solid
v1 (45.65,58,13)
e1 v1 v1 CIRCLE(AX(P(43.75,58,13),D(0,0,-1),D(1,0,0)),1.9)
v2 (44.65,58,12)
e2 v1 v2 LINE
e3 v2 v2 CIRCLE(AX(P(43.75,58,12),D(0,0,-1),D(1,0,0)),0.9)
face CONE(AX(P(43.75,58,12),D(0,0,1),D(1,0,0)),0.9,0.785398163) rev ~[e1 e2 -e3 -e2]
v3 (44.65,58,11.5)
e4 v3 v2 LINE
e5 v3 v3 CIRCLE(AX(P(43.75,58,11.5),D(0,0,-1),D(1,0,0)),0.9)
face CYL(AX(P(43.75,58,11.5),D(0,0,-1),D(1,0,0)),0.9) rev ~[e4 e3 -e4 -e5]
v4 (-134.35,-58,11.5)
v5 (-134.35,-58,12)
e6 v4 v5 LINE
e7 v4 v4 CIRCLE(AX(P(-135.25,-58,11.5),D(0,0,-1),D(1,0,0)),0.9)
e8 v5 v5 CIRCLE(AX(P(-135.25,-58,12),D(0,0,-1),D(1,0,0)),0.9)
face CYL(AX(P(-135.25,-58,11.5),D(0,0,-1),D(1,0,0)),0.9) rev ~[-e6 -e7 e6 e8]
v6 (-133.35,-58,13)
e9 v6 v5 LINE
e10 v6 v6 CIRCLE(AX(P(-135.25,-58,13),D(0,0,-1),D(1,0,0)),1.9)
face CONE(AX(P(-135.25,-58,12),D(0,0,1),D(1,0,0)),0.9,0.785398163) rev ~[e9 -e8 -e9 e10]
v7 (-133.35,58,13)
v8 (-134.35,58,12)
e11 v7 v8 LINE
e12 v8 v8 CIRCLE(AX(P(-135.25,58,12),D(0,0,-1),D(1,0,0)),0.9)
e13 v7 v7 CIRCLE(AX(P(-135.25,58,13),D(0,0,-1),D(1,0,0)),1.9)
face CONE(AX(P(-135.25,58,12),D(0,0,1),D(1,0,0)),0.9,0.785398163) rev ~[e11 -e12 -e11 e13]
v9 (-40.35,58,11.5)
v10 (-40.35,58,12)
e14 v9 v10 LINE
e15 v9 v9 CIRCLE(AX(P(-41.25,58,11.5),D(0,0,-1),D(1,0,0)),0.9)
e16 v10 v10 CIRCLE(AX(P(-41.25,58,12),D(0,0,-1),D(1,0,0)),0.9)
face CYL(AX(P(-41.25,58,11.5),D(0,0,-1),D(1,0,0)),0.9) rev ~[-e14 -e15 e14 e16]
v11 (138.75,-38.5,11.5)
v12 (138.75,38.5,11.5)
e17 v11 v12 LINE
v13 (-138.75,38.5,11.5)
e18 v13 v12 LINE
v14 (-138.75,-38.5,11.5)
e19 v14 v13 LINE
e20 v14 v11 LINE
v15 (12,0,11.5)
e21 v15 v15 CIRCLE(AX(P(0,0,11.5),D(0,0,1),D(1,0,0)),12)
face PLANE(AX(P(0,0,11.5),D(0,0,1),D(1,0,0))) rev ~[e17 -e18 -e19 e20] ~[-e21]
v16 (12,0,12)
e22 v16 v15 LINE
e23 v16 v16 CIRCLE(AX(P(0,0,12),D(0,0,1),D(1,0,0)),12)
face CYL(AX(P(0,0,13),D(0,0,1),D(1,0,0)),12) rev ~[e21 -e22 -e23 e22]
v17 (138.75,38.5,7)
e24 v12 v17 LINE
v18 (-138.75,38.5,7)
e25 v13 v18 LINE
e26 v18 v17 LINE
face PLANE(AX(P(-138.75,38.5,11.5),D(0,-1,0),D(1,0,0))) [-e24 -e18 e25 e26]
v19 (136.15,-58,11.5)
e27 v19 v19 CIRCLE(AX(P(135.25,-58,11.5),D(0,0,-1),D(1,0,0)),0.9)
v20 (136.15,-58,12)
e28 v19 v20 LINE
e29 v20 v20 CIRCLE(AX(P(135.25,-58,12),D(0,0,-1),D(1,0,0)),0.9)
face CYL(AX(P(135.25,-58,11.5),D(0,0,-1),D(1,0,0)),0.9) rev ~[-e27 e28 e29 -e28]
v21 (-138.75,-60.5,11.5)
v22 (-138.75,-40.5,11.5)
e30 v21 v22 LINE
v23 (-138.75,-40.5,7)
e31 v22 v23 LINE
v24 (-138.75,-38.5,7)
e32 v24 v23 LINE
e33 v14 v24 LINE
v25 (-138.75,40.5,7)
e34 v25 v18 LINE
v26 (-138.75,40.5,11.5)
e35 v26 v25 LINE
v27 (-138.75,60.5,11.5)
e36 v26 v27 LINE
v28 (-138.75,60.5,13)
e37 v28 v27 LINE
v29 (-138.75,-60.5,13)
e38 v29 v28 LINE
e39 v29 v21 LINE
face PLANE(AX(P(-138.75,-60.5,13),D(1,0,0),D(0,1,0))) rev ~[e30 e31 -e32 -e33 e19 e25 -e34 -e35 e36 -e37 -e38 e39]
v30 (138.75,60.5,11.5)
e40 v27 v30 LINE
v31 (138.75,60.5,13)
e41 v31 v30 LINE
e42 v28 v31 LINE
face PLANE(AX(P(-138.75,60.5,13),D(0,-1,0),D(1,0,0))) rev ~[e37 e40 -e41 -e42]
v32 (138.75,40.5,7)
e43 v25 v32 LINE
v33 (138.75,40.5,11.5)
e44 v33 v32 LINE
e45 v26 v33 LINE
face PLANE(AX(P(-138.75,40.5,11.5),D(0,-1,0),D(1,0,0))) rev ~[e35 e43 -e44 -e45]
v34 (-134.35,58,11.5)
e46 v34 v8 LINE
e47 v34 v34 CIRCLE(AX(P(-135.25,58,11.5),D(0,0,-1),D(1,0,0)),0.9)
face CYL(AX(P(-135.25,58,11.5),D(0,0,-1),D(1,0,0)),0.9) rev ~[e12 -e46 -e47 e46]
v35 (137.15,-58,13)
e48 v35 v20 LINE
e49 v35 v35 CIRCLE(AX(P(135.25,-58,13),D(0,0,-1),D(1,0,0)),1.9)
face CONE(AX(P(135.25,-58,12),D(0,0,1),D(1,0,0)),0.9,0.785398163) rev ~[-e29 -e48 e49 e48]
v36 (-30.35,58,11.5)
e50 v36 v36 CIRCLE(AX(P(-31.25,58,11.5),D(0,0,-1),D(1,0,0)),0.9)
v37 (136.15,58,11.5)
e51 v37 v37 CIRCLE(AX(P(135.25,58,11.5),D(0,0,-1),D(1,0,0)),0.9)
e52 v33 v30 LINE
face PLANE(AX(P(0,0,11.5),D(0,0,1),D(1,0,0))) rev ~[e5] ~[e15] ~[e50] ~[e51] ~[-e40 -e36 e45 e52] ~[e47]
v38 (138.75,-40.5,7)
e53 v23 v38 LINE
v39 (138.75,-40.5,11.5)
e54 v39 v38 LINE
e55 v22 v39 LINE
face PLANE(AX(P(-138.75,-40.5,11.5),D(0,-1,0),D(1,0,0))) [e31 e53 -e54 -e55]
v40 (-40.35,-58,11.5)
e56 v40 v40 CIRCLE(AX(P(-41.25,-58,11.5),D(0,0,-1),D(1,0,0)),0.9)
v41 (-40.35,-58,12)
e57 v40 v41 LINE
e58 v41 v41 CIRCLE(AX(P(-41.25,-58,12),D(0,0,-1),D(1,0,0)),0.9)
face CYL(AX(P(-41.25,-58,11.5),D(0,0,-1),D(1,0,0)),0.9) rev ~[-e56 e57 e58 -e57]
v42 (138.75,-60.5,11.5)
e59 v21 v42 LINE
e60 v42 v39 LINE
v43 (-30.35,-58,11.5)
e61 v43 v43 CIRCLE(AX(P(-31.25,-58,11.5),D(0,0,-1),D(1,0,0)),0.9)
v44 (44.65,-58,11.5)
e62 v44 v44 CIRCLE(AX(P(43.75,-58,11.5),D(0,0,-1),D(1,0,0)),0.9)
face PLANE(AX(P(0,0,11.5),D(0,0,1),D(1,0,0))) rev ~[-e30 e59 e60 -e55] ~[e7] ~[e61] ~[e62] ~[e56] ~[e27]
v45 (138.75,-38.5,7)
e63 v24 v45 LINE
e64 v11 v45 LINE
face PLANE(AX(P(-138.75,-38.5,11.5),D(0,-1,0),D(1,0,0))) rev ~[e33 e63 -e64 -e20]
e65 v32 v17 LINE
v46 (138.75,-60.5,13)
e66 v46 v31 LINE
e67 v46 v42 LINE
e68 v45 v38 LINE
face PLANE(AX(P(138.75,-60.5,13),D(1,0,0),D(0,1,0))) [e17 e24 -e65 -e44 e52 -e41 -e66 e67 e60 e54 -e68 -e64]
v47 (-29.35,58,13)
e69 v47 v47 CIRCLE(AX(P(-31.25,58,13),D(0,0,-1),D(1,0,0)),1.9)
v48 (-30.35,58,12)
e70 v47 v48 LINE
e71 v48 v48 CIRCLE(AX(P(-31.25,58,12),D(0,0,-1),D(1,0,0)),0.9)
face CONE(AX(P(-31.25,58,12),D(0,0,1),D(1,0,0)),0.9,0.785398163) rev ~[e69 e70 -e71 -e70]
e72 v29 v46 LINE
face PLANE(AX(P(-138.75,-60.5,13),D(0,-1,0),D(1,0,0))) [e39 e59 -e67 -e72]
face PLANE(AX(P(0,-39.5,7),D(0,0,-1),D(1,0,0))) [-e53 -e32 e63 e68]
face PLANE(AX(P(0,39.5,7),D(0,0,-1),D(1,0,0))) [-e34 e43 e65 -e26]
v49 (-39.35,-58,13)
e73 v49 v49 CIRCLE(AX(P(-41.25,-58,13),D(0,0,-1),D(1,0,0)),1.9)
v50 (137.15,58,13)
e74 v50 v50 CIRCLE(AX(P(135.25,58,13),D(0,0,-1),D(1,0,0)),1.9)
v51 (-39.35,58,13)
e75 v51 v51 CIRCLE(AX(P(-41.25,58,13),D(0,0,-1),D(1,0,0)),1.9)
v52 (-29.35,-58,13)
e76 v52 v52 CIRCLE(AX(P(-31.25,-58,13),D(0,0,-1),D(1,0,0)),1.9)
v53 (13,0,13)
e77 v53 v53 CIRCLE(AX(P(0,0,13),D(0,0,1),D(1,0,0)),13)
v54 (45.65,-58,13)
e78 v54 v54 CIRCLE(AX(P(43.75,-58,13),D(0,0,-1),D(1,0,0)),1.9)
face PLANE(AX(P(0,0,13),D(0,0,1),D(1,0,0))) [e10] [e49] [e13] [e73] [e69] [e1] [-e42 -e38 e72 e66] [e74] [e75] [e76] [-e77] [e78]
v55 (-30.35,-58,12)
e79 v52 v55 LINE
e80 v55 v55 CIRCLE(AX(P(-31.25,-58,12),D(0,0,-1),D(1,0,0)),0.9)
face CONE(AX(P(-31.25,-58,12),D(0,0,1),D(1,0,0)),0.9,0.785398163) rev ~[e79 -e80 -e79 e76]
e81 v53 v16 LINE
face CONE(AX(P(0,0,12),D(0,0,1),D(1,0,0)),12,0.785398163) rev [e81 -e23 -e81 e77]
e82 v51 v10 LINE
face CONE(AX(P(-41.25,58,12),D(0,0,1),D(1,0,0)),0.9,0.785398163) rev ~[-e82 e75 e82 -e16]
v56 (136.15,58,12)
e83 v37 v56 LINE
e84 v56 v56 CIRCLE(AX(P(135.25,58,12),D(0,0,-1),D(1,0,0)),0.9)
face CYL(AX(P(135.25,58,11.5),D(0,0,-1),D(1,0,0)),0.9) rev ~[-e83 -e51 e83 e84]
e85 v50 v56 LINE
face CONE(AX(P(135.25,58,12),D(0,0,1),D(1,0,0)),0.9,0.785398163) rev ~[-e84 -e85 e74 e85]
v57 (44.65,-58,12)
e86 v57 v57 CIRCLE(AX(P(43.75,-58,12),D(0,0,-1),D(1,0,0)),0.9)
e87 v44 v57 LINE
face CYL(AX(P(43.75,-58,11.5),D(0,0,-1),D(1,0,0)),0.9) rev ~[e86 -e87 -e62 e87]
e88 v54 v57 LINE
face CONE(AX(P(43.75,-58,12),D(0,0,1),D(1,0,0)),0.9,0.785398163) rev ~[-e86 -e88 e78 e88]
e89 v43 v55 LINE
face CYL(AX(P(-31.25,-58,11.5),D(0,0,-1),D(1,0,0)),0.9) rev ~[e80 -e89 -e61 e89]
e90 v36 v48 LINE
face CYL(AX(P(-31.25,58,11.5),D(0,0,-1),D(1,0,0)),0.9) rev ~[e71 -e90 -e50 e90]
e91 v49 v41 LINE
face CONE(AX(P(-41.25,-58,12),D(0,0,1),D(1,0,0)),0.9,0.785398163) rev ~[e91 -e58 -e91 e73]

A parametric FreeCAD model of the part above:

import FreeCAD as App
import Part
import Sketcher
from FreeCAD import Vector


def edges_at(feature, points):
    """Names of the edges that pass closest to the given points."""
    edges = feature.Shape.Edges
    near = lambda p: min(range(len(edges)), key=lambda i: edges[i].distToShape(Part.Vertex(*p))[0])
    return sorted({f"Edge{near(p) + 1}" for p in points})

doc = App.newDocument("Part")
body = doc.addObject("PartDesign::Body", "Body")

# Sketch on XY plane
sketch1 = doc.addObject("Sketcher::SketchObject", "Sketch")
body.addObject(sketch1)
sketch1.AttachmentSupport = (doc.XY_Plane, [""])
sketch1.MapMode = "FlatFace"
sketch1.AttachmentOffset = App.Placement(Vector(0, 0, 13), App.Rotation())
sketch1.addGeometry(Part.LineSegment(Vector(-138.75, 60.5, 0), Vector(-138.75, -60.5, 0)), False)
sketch1.addGeometry(Part.LineSegment(Vector(-138.75, -60.5, 0), Vector(138.75, -60.5, 0)), False)
sketch1.addGeometry(Part.LineSegment(Vector(138.75, -60.5, 0), Vector(138.75, 60.5, 0)), False)
sketch1.addGeometry(Part.LineSegment(Vector(138.75, 60.5, 0), Vector(-138.75, 60.5, 0)), False)
sketch1.addConstraint(Sketcher.Constraint("Coincident", 0, 2, 1, 1))
sketch1.addConstraint(Sketcher.Constraint("Coincident", 1, 2, 2, 1))
sketch1.addConstraint(Sketcher.Constraint("Coincident", 2, 2, 3, 1))
sketch1.addConstraint(Sketcher.Constraint("Coincident", 3, 2, 0, 1))
sketch1.addConstraint(Sketcher.Constraint("Vertical", 0))
sketch1.addConstraint(Sketcher.Constraint("Horizontal", 1))
sketch1.addConstraint(Sketcher.Constraint("Vertical", 2))
sketch1.addConstraint(Sketcher.Constraint("Horizontal", 3))
sketch1.addConstraint(Sketcher.Constraint("Symmetric", 0, 2, 2, 2, -1, 1))
sketch1.addConstraint(Sketcher.Constraint("DistanceY", 0, 2, 0, 1, 121.0))
sketch1.addConstraint(Sketcher.Constraint("DistanceX", 1, 1, 1, 2, 277.5))
pad1 = doc.addObject("PartDesign::Pad", "Pad")
body.addObject(pad1)
pad1.Profile = sketch1
pad1.Length = 1.5
pad1.Reversed = True

# Sketch on XY plane
sketch2 = doc.addObject("Sketcher::SketchObject", "Sketch001")
body.addObject(sketch2)
sketch2.AttachmentSupport = (doc.XY_Plane, [""])
sketch2.MapMode = "FlatFace"
sketch2.AttachmentOffset = App.Placement(Vector(0, 0, 11.5), App.Rotation())
sketch2.addGeometry(Part.Circle(Vector(-135.25, -58, 0), Vector(0, 0, 1), 0.9), False)
sketch2.addGeometry(Part.Circle(Vector(-41.25, -58, 0), Vector(0, 0, 1), 0.9), False)
sketch2.addGeometry(Part.Circle(Vector(-31.25, -58, 0), Vector(0, 0, 1), 0.9), False)
sketch2.addGeometry(Part.Circle(Vector(43.75, -58, 0), Vector(0, 0, 1), 0.9), False)
sketch2.addGeometry(Part.Circle(Vector(135.25, -58, 0), Vector(0, 0, 1), 0.9), False)
sketch2.addGeometry(Part.Circle(Vector(135.25, 58, 0), Vector(0, 0, 1), 0.9), False)
sketch2.addGeometry(Part.Circle(Vector(43.75, 58, 0), Vector(0, 0, 1), 0.9), False)
sketch2.addGeometry(Part.Circle(Vector(-31.25, 58, 0), Vector(0, 0, 1), 0.9), False)
sketch2.addGeometry(Part.Circle(Vector(-41.25, 58, 0), Vector(0, 0, 1), 0.9), False)
sketch2.addGeometry(Part.Circle(Vector(-135.25, 58, 0), Vector(0, 0, 1), 0.9), False)
sketch2.addConstraint(Sketcher.Constraint("Equal", 0, 1))
sketch2.addConstraint(Sketcher.Constraint("Equal", 1, 2))
sketch2.addConstraint(Sketcher.Constraint("Equal", 2, 3))
sketch2.addConstraint(Sketcher.Constraint("Equal", 3, 4))
sketch2.addConstraint(Sketcher.Constraint("Equal", 4, 5))
sketch2.addConstraint(Sketcher.Constraint("Equal", 5, 6))
sketch2.addConstraint(Sketcher.Constraint("Equal", 6, 7))
sketch2.addConstraint(Sketcher.Constraint("Equal", 7, 8))
sketch2.addConstraint(Sketcher.Constraint("Equal", 8, 9))
sketch2.addConstraint(Sketcher.Constraint("Symmetric", 0, 3, 5, 3, -1, 1))
sketch2.addConstraint(Sketcher.Constraint("Symmetric", 4, 3, 9, 3, -1, 1))
sketch2.addConstraint(Sketcher.Constraint("Symmetric", 0, 3, 4, 3, -2))
sketch2.addConstraint(Sketcher.Constraint("Symmetric", 3, 3, 6, 3, -1))
sketch2.addConstraint(Sketcher.Constraint("Symmetric", 2, 3, 7, 3, -1))
sketch2.addConstraint(Sketcher.Constraint("Symmetric", 1, 3, 8, 3, -1))
sketch2.addConstraint(Sketcher.Constraint("Horizontal", 0, 3, 1, 3))
sketch2.addConstraint(Sketcher.Constraint("Horizontal", 1, 3, 2, 3))
sketch2.addConstraint(Sketcher.Constraint("Horizontal", 2, 3, 3, 3))
sketch2.addConstraint(Sketcher.Constraint("Diameter", 0, 1.8))
sketch2.addConstraint(Sketcher.Constraint("DistanceY", 0, 3, -1, 1, 58.0))
sketch2.addConstraint(Sketcher.Constraint("DistanceX", 0, 3, 1, 3, 94.0))
sketch2.addConstraint(Sketcher.Constraint("DistanceX", 1, 3, 2, 3, 10.0))
sketch2.addConstraint(Sketcher.Constraint("DistanceX", 2, 3, 3, 3, 75.0))
sketch2.addConstraint(Sketcher.Constraint("DistanceX", 3, 3, 4, 3, 91.5))
pocket1 = doc.addObject("PartDesign::Pocket", "Pocket")
body.addObject(pocket1)
pocket1.Profile = sketch2
pocket1.Type = "ThroughAll"
pocket1.Reversed = True

# Sketch on XY plane
sketch3 = doc.addObject("Sketcher::SketchObject", "Sketch002")
body.addObject(sketch3)
sketch3.AttachmentSupport = (doc.XY_Plane, [""])
sketch3.MapMode = "FlatFace"
sketch3.AttachmentOffset = App.Placement(Vector(0, 0, 11.5), App.Rotation())
sketch3.addGeometry(Part.LineSegment(Vector(-138.75, -40.5, 0), Vector(-138.75, -38.5, 0)), False)
sketch3.addGeometry(Part.LineSegment(Vector(-138.75, -38.5, 0), Vector(138.75, -38.5, 0)), False)
sketch3.addGeometry(Part.LineSegment(Vector(138.75, -38.5, 0), Vector(138.75, -40.5, 0)), False)
sketch3.addGeometry(Part.LineSegment(Vector(138.75, -40.5, 0), Vector(-138.75, -40.5, 0)), False)
sketch3.addGeometry(Part.LineSegment(Vector(-138.75, 38.5, 0), Vector(-138.75, 40.5, 0)), False)
sketch3.addGeometry(Part.LineSegment(Vector(-138.75, 40.5, 0), Vector(138.75, 40.5, 0)), False)
sketch3.addGeometry(Part.LineSegment(Vector(138.75, 40.5, 0), Vector(138.75, 38.5, 0)), False)
sketch3.addGeometry(Part.LineSegment(Vector(138.75, 38.5, 0), Vector(-138.75, 38.5, 0)), False)
sketch3.addConstraint(Sketcher.Constraint("Coincident", 0, 2, 1, 1))
sketch3.addConstraint(Sketcher.Constraint("Coincident", 1, 2, 2, 1))
sketch3.addConstraint(Sketcher.Constraint("Coincident", 2, 2, 3, 1))
sketch3.addConstraint(Sketcher.Constraint("Coincident", 3, 2, 0, 1))
sketch3.addConstraint(Sketcher.Constraint("Coincident", 4, 2, 5, 1))
sketch3.addConstraint(Sketcher.Constraint("Coincident", 5, 2, 6, 1))
sketch3.addConstraint(Sketcher.Constraint("Coincident", 6, 2, 7, 1))
sketch3.addConstraint(Sketcher.Constraint("Coincident", 7, 2, 4, 1))
sketch3.addConstraint(Sketcher.Constraint("Vertical", 0))
sketch3.addConstraint(Sketcher.Constraint("Horizontal", 1))
sketch3.addConstraint(Sketcher.Constraint("Vertical", 2))
sketch3.addConstraint(Sketcher.Constraint("Horizontal", 3))
sketch3.addConstraint(Sketcher.Constraint("Vertical", 4))
sketch3.addConstraint(Sketcher.Constraint("Horizontal", 5))
sketch3.addConstraint(Sketcher.Constraint("Vertical", 6))
sketch3.addConstraint(Sketcher.Constraint("Horizontal", 7))
sketch3.addConstraint(Sketcher.Constraint("Symmetric", 2, 2, 4, 2, -1, 1))
sketch3.addConstraint(Sketcher.Constraint("Symmetric", 0, 2, 6, 2, -1, 1))
sketch3.addConstraint(Sketcher.Constraint("Vertical", 3, 2, 4, 2))
sketch3.addConstraint(Sketcher.Constraint("DistanceY", 0, 1, 0, 2, 2.0))
sketch3.addConstraint(Sketcher.Constraint("DistanceX", 1, 1, 1, 2, 277.5))
sketch3.addConstraint(Sketcher.Constraint("DistanceY", 0, 2, 4, 2, 79.0))
pad2 = doc.addObject("PartDesign::Pad", "Pad001")
body.addObject(pad2)
pad2.Profile = sketch3
pad2.Length = 4.5
pad2.Reversed = True

# Sketch on XY plane
sketch4 = doc.addObject("Sketcher::SketchObject", "Sketch003")
body.addObject(sketch4)
sketch4.AttachmentSupport = (doc.XY_Plane, [""])
sketch4.MapMode = "FlatFace"
sketch4.AttachmentOffset = App.Placement(Vector(0, 0, 13), App.Rotation())
sketch4.addGeometry(Part.Circle(Vector(0, 0, 0), Vector(0, 0, 1), 12), False)
sketch4.addConstraint(Sketcher.Constraint("Coincident", 0, 3, -1, 1))
sketch4.addConstraint(Sketcher.Constraint("Diameter", 0, 24.0))
pocket2 = doc.addObject("PartDesign::Pocket", "Pocket001")
body.addObject(pocket2)
pocket2.Profile = sketch4
pocket2.Type = "ThroughAll"
doc.recompute()

chamfer = doc.addObject("PartDesign::Chamfer", "Chamfer")
body.addObject(chamfer)
chamfer.Base = (pocket2, edges_at(pocket2, [
    (134.35, -58, 13),
    (42.85, -58, 13),
    (-32.15, -58, 13),
    (-42.15, -58, 13),
    (-136.15, -58, 13),
    (-136.15, 58, 13),
    (-42.15, 58, 13),
    (-32.15, 58, 13),
    (42.85, 58, 13),
    (134.35, 58, 13),
    (-12, 0, 13),
]))
chamfer.Size = 1

doc.recompute()
